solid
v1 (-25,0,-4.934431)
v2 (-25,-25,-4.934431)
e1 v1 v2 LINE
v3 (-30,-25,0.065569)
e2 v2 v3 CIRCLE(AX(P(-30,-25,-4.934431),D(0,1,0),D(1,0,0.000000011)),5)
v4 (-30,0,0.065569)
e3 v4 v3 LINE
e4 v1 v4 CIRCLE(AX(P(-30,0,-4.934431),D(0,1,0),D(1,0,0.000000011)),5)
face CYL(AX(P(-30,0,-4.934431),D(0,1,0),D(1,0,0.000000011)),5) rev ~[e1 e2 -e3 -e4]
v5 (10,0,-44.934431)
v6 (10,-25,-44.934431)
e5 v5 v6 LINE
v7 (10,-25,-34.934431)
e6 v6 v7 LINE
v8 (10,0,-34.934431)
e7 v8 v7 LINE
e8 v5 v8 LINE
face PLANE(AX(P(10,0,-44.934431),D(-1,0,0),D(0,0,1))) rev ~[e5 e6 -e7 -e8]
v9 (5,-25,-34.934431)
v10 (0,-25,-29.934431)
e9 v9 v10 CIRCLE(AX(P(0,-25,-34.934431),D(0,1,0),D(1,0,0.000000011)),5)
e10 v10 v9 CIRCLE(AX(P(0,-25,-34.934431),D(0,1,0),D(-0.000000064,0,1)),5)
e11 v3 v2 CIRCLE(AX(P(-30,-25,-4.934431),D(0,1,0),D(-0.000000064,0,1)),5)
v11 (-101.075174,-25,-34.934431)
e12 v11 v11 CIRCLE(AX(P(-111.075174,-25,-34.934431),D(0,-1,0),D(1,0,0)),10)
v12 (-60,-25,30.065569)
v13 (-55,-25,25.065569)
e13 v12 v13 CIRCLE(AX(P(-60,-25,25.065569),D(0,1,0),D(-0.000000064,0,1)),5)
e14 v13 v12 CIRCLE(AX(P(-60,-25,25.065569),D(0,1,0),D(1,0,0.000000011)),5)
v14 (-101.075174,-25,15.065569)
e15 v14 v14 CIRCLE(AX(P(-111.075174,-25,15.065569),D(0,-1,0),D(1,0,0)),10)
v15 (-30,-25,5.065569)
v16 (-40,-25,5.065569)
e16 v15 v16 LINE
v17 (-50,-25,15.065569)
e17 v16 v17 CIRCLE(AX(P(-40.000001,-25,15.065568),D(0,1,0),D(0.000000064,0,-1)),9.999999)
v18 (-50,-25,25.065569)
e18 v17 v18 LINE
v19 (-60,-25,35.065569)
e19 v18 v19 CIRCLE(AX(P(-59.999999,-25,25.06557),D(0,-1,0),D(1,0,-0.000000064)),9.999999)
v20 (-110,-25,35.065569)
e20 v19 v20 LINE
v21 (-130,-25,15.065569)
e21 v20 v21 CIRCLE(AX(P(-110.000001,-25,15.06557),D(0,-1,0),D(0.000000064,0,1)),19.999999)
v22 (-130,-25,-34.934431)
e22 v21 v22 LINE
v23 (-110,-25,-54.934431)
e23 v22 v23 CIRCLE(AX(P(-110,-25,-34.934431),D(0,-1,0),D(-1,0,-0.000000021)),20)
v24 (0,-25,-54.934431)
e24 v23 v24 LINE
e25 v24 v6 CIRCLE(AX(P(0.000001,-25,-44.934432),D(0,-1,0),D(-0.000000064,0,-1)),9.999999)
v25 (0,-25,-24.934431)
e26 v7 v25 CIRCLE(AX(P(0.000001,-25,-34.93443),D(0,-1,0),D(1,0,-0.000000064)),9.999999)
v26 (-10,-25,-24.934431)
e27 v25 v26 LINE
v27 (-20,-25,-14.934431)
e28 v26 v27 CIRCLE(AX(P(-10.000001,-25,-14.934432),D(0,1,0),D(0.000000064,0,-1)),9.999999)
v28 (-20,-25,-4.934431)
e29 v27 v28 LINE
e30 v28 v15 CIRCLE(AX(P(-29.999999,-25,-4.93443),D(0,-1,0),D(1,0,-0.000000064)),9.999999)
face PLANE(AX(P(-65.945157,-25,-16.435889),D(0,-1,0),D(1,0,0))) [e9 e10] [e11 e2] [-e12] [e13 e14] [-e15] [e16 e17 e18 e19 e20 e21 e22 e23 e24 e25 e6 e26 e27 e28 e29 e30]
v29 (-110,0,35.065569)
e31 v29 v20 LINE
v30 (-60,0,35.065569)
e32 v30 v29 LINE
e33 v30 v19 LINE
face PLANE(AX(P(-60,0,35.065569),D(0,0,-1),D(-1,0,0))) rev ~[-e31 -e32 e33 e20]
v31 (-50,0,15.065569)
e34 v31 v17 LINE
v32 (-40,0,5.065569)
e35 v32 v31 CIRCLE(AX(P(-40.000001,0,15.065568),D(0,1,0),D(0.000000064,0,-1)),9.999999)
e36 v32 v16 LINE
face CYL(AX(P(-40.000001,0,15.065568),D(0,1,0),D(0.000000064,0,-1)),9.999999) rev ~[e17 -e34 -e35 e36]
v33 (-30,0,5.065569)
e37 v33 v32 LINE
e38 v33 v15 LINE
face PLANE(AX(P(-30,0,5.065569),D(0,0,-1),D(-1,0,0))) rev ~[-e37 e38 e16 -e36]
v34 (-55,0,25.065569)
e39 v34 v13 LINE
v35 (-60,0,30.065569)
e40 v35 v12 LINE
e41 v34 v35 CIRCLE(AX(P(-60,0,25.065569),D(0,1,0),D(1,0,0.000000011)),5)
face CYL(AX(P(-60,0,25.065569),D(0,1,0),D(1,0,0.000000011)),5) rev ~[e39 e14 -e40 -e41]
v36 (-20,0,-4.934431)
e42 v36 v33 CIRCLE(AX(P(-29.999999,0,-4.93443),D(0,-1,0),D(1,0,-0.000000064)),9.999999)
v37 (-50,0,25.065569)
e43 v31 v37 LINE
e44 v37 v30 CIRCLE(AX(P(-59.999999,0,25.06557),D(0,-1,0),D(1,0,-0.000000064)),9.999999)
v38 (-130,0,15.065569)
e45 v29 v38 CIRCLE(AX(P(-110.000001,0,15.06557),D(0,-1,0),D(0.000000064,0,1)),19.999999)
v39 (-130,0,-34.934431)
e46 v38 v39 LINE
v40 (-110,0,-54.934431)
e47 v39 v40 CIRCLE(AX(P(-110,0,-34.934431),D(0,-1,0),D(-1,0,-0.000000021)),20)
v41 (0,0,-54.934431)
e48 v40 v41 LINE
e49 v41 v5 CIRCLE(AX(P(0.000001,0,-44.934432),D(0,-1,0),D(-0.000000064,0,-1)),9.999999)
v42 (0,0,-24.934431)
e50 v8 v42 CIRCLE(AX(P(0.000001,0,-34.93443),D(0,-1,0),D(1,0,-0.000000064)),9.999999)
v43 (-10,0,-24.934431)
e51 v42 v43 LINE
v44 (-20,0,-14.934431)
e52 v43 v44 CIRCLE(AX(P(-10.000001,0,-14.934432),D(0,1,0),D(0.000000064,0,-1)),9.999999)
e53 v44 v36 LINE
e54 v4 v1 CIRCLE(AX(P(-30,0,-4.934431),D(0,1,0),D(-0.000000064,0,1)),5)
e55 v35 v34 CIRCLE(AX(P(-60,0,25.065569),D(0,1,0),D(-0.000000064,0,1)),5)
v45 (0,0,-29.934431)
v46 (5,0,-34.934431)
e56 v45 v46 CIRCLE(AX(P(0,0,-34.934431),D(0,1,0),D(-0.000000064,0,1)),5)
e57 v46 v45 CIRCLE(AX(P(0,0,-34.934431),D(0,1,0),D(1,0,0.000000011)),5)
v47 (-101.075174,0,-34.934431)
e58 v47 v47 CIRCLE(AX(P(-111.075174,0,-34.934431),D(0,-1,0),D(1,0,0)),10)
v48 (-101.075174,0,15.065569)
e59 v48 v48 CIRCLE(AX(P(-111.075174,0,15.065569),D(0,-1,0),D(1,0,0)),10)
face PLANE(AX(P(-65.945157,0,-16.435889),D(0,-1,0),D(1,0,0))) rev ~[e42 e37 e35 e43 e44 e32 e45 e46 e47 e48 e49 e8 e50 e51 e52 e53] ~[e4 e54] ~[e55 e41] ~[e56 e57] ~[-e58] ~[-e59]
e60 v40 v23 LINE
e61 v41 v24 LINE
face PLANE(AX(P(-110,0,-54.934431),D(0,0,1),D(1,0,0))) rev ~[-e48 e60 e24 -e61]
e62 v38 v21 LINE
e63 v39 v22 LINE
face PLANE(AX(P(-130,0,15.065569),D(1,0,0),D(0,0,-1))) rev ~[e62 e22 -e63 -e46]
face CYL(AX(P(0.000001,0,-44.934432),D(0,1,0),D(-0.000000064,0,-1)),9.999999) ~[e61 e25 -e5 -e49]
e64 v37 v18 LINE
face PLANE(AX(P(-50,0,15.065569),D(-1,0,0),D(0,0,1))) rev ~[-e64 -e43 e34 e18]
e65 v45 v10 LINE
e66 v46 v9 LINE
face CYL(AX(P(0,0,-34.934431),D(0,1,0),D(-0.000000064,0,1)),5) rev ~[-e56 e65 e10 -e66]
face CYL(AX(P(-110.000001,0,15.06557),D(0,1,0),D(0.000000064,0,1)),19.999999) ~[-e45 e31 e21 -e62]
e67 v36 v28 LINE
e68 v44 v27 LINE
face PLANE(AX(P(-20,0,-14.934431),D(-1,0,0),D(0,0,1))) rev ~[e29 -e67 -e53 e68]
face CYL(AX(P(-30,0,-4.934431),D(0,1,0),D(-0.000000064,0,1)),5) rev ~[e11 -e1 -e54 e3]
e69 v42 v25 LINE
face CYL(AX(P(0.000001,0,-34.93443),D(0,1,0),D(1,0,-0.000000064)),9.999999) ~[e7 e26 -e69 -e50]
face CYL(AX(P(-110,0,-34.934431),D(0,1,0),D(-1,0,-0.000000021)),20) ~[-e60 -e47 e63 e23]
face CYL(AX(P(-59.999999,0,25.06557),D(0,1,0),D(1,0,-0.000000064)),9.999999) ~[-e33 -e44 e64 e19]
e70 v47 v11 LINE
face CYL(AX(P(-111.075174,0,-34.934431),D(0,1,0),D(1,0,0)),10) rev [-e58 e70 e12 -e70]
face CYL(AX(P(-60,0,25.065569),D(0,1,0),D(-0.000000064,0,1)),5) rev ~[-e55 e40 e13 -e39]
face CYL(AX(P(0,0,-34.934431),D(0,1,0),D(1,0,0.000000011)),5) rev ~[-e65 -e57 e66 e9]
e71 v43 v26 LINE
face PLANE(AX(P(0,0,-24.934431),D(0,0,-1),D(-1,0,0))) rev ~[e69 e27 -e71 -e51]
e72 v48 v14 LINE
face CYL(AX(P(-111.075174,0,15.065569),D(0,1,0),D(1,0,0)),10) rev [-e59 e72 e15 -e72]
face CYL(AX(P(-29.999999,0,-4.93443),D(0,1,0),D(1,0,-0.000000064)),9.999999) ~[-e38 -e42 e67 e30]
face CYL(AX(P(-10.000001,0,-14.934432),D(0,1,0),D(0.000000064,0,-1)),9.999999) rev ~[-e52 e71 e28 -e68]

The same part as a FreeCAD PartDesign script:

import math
import FreeCAD as App
import Part
import Sketcher

V = App.Vector

doc = App.newDocument("Part")
body = doc.addObject("PartDesign::Body", "Body")

sketch1 = body.newObject("Sketcher::SketchObject", "Sketch")
sketch1.AttachmentSupport = (doc.getObject("XZ_Plane"), [""])
sketch1.MapMode = "FlatFace"
sketch1.addGeometry(Part.ArcOfCircle(Part.Circle(V(-110, -34.9, 0), V(0, 0, 1), 20), math.radians(-180), math.radians(-90)), False)
sketch1.addGeometry(Part.LineSegment(V(-110, -54.9, 0), V(0, -54.9, 0)), False)
sketch1.addGeometry(Part.ArcOfCircle(Part.Circle(V(0, -44.9, 0), V(0, 0, 1), 10), math.radians(-90), math.radians(0)), False)
sketch1.addGeometry(Part.LineSegment(V(10, -44.9, 0), V(10, -34.9, 0)), False)
sketch1.addGeometry(Part.ArcOfCircle(Part.Circle(V(0, -34.9, 0), V(0, 0, 1), 10), math.radians(0), math.radians(90)), False)
sketch1.addGeometry(Part.LineSegment(V(0, -24.9, 0), V(-10, -24.9, 0)), False)
sketch1.addGeometry(Part.ArcOfCircle(Part.Circle(V(-10, -14.9, 0), V(0, 0, 1), 10), math.radians(180), math.radians(270)), False)
sketch1.addGeometry(Part.LineSegment(V(-20, -14.9, 0), V(-20, -4.9, 0)), False)
sketch1.addGeometry(Part.ArcOfCircle(Part.Circle(V(-30, -4.9, 0), V(0, 0, 1), 10), math.radians(0), math.radians(90)), False)
sketch1.addGeometry(Part.LineSegment(V(-30, 5.1, 0), V(-40, 5.1, 0)), False)
sketch1.addGeometry(Part.ArcOfCircle(Part.Circle(V(-40, 15.1, 0), V(0, 0, 1), 10), math.radians(180), math.radians(270)), False)
sketch1.addGeometry(Part.LineSegment(V(-50, 15.1, 0), V(-50, 25.1, 0)), False)
sketch1.addGeometry(Part.ArcOfCircle(Part.Circle(V(-60, 25.1, 0), V(0, 0, 1), 10), math.radians(0), math.radians(90)), False)
sketch1.addGeometry(Part.LineSegment(V(-60, 35.1, 0), V(-110, 35.1, 0)), False)
sketch1.addGeometry(Part.ArcOfCircle(Part.Circle(V(-110, 15.1, 0), V(0, 0, 1), 20), math.radians(90), math.radians(180)), False)
sketch1.addGeometry(Part.LineSegment(V(-130, 15.1, 0), V(-130, -34.9, 0)), False)
sketch1.addGeometry(Part.Circle(V(-111.1, -34.9, 0), V(0, 0, 1), 10), False)
sketch1.addGeometry(Part.ArcOfCircle(Part.Circle(V(0, -34.9, 0), V(0, 0, 1), 5), math.radians(0), math.radians(90)), False)
sketch1.addGeometry(Part.ArcOfCircle(Part.Circle(V(0, -34.9, 0), V(0, 0, 1), 5), math.radians(90), math.radians(360)), False)
sketch1.addGeometry(Part.Circle(V(-111.1, 15.1, 0), V(0, 0, 1), 10), False)
sketch1.addGeometry(Part.ArcOfCircle(Part.Circle(V(-60, 25.1, 0), V(0, 0, 1), 5), math.radians(0), math.radians(90)), False)
sketch1.addGeometry(Part.ArcOfCircle(Part.Circle(V(-60, 25.1, 0), V(0, 0, 1), 5), math.radians(90), math.radians(360)), False)
sketch1.addGeometry(Part.ArcOfCircle(Part.Circle(V(-30, -4.9, 0), V(0, 0, 1), 5), math.radians(0), math.radians(90)), False)
sketch1.addGeometry(Part.ArcOfCircle(Part.Circle(V(-30, -4.9, 0), V(0, 0, 1), 5), math.radians(90), math.radians(360)), False)
sketch1.addConstraint(Sketcher.Constraint("Tangent", 0, 2, 1, 1))
sketch1.addConstraint(Sketcher.Constraint("Tangent", 1, 2, 2, 1))
sketch1.addConstraint(Sketcher.Constraint("Tangent", 2, 2, 3, 1))
sketch1.addConstraint(Sketcher.Constraint("Tangent", 3, 2, 4, 1))
sketch1.addConstraint(Sketcher.Constraint("Tangent", 4, 2, 5, 1))
sketch1.addConstraint(Sketcher.Constraint("Tangent", 5, 2, 6, 2))
sketch1.addConstraint(Sketcher.Constraint("Tangent", 6, 1, 7, 1))
sketch1.addConstraint(Sketcher.Constraint("Tangent", 7, 2, 8, 1))
sketch1.addConstraint(Sketcher.Constraint("Tangent", 8, 2, 9, 1))
sketch1.addConstraint(Sketcher.Constraint("Tangent", 9, 2, 10, 2))
sketch1.addConstraint(Sketcher.Constraint("Tangent", 10, 1, 11, 1))
sketch1.addConstraint(Sketcher.Constraint("Tangent", 11, 2, 12, 1))
sketch1.addConstraint(Sketcher.Constraint("Tangent", 12, 2, 13, 1))
sketch1.addConstraint(Sketcher.Constraint("Tangent", 13, 2, 14, 1))
sketch1.addConstraint(Sketcher.Constraint("Tangent", 14, 2, 15, 1))
sketch1.addConstraint(Sketcher.Constraint("Tangent", 15, 2, 0, 1))
sketch1.addConstraint(Sketcher.Constraint("Tangent", 17, 1, 18, 2))
sketch1.addConstraint(Sketcher.Constraint("Coincident", 18, 1, 17, 2))
sketch1.addConstraint(Sketcher.Constraint("Tangent", 20, 1, 21, 2))
sketch1.addConstraint(Sketcher.Constraint("Coincident", 21, 1, 20, 2))
sketch1.addConstraint(Sketcher.Constraint("Tangent", 22, 1, 23, 2))
sketch1.addConstraint(Sketcher.Constraint("Coincident", 23, 1, 22, 2))
sketch1.addConstraint(Sketcher.Constraint("Horizontal", 1))
sketch1.addConstraint(Sketcher.Constraint("Vertical", 3))
sketch1.addConstraint(Sketcher.Constraint("Horizontal", 5))
sketch1.addConstraint(Sketcher.Constraint("Vertical", 7))
sketch1.addConstraint(Sketcher.Constraint("Horizontal", 9))
sketch1.addConstraint(Sketcher.Constraint("Vertical", 11))
sketch1.addConstraint(Sketcher.Constraint("Horizontal", 13))
sketch1.addConstraint(Sketcher.Constraint("Vertical", 15))
sketch1.addConstraint(Sketcher.Constraint("Coincident", 17, 3, 4, 3))
sketch1.addConstraint(Sketcher.Constraint("Coincident", 20, 3, 12, 3))
sketch1.addConstraint(Sketcher.Constraint("Coincident", 22, 3, 8, 3))
sketch1.addConstraint(Sketcher.Constraint("Equal", 2, 4))
sketch1.addConstraint(Sketcher.Constraint("Equal", 4, 6))
sketch1.addConstraint(Sketcher.Constraint("Equal", 6, 8))
sketch1.addConstraint(Sketcher.Constraint("Equal", 8, 10))
sketch1.addConstraint(Sketcher.Constraint("Equal", 10, 12))
sketch1.addConstraint(Sketcher.Constraint("Equal", 0, 14))
sketch1.addConstraint(Sketcher.Constraint("Equal", 12, 16))
sketch1.addConstraint(Sketcher.Constraint("Equal", 16, 19))
sketch1.addConstraint(Sketcher.Constraint("Equal", 18, 20))
sketch1.addConstraint(Sketcher.Constraint("Equal", 21, 22))
sketch1.addConstraint(Sketcher.Constraint("PointOnObject", 2, 3, -2))
sketch1.addConstraint(Sketcher.Constraint("PointOnObject", 18, 1, -2))
sketch1.addConstraint(Sketcher.Constraint("Horizontal", 0, 3, 4, 3))
sketch1.addConstraint(Sketcher.Constraint("Horizontal", 10, 3, 14, 3))
sketch1.addConstraint(Sketcher.Constraint("Horizontal", 4, 3, 16, 3))
sketch1.addConstraint(Sketcher.Constraint("Horizontal", 14, 3, 19, 3))
sketch1.addConstraint(Sketcher.Constraint("Horizontal", 15, 2, 17, 1))
sketch1.addConstraint(Sketcher.Constraint("Horizontal", 11, 2, 20, 1))
sketch1.addConstraint(Sketcher.Constraint("Horizontal", 7, 2, 22, 1))
sketch1.addConstraint(Sketcher.Constraint("Vertical", 16, 3, 19, 3))
sketch1.addConstraint(Sketcher.Constraint("Vertical", 12, 2, 21, 1))
sketch1.addConstraint(Sketcher.Constraint("Vertical", 8, 2, 23, 1))
sketch1.addConstraint(Sketcher.Constraint("Equal", 5, 9))
sketch1.addConstraint(Sketcher.Constraint("Equal", 9, 3))
sketch1.addConstraint(Sketcher.Constraint("Equal", 3, 7))
sketch1.addConstraint(Sketcher.Constraint("Equal", 13, 15))
sketch1.addConstraint(Sketcher.Constraint("Diameter", 16, 20.0))
sketch1.addConstraint(Sketcher.Constraint("Radius", 0, 20.0))
sketch1.addConstraint(Sketcher.Constraint("Radius", 17, 5.0))
sketch1.addConstraint(Sketcher.Constraint("DistanceY", 0, 3, -1, 1, 34.934431))
sketch1.addConstraint(Sketcher.Constraint("DistanceX", 16, 3, -1, 1, 111.075174))
pad1 = body.newObject("PartDesign::Pad", "Pad")
pad1.Profile = sketch1
pad1.Length = 25

doc.recompute()
